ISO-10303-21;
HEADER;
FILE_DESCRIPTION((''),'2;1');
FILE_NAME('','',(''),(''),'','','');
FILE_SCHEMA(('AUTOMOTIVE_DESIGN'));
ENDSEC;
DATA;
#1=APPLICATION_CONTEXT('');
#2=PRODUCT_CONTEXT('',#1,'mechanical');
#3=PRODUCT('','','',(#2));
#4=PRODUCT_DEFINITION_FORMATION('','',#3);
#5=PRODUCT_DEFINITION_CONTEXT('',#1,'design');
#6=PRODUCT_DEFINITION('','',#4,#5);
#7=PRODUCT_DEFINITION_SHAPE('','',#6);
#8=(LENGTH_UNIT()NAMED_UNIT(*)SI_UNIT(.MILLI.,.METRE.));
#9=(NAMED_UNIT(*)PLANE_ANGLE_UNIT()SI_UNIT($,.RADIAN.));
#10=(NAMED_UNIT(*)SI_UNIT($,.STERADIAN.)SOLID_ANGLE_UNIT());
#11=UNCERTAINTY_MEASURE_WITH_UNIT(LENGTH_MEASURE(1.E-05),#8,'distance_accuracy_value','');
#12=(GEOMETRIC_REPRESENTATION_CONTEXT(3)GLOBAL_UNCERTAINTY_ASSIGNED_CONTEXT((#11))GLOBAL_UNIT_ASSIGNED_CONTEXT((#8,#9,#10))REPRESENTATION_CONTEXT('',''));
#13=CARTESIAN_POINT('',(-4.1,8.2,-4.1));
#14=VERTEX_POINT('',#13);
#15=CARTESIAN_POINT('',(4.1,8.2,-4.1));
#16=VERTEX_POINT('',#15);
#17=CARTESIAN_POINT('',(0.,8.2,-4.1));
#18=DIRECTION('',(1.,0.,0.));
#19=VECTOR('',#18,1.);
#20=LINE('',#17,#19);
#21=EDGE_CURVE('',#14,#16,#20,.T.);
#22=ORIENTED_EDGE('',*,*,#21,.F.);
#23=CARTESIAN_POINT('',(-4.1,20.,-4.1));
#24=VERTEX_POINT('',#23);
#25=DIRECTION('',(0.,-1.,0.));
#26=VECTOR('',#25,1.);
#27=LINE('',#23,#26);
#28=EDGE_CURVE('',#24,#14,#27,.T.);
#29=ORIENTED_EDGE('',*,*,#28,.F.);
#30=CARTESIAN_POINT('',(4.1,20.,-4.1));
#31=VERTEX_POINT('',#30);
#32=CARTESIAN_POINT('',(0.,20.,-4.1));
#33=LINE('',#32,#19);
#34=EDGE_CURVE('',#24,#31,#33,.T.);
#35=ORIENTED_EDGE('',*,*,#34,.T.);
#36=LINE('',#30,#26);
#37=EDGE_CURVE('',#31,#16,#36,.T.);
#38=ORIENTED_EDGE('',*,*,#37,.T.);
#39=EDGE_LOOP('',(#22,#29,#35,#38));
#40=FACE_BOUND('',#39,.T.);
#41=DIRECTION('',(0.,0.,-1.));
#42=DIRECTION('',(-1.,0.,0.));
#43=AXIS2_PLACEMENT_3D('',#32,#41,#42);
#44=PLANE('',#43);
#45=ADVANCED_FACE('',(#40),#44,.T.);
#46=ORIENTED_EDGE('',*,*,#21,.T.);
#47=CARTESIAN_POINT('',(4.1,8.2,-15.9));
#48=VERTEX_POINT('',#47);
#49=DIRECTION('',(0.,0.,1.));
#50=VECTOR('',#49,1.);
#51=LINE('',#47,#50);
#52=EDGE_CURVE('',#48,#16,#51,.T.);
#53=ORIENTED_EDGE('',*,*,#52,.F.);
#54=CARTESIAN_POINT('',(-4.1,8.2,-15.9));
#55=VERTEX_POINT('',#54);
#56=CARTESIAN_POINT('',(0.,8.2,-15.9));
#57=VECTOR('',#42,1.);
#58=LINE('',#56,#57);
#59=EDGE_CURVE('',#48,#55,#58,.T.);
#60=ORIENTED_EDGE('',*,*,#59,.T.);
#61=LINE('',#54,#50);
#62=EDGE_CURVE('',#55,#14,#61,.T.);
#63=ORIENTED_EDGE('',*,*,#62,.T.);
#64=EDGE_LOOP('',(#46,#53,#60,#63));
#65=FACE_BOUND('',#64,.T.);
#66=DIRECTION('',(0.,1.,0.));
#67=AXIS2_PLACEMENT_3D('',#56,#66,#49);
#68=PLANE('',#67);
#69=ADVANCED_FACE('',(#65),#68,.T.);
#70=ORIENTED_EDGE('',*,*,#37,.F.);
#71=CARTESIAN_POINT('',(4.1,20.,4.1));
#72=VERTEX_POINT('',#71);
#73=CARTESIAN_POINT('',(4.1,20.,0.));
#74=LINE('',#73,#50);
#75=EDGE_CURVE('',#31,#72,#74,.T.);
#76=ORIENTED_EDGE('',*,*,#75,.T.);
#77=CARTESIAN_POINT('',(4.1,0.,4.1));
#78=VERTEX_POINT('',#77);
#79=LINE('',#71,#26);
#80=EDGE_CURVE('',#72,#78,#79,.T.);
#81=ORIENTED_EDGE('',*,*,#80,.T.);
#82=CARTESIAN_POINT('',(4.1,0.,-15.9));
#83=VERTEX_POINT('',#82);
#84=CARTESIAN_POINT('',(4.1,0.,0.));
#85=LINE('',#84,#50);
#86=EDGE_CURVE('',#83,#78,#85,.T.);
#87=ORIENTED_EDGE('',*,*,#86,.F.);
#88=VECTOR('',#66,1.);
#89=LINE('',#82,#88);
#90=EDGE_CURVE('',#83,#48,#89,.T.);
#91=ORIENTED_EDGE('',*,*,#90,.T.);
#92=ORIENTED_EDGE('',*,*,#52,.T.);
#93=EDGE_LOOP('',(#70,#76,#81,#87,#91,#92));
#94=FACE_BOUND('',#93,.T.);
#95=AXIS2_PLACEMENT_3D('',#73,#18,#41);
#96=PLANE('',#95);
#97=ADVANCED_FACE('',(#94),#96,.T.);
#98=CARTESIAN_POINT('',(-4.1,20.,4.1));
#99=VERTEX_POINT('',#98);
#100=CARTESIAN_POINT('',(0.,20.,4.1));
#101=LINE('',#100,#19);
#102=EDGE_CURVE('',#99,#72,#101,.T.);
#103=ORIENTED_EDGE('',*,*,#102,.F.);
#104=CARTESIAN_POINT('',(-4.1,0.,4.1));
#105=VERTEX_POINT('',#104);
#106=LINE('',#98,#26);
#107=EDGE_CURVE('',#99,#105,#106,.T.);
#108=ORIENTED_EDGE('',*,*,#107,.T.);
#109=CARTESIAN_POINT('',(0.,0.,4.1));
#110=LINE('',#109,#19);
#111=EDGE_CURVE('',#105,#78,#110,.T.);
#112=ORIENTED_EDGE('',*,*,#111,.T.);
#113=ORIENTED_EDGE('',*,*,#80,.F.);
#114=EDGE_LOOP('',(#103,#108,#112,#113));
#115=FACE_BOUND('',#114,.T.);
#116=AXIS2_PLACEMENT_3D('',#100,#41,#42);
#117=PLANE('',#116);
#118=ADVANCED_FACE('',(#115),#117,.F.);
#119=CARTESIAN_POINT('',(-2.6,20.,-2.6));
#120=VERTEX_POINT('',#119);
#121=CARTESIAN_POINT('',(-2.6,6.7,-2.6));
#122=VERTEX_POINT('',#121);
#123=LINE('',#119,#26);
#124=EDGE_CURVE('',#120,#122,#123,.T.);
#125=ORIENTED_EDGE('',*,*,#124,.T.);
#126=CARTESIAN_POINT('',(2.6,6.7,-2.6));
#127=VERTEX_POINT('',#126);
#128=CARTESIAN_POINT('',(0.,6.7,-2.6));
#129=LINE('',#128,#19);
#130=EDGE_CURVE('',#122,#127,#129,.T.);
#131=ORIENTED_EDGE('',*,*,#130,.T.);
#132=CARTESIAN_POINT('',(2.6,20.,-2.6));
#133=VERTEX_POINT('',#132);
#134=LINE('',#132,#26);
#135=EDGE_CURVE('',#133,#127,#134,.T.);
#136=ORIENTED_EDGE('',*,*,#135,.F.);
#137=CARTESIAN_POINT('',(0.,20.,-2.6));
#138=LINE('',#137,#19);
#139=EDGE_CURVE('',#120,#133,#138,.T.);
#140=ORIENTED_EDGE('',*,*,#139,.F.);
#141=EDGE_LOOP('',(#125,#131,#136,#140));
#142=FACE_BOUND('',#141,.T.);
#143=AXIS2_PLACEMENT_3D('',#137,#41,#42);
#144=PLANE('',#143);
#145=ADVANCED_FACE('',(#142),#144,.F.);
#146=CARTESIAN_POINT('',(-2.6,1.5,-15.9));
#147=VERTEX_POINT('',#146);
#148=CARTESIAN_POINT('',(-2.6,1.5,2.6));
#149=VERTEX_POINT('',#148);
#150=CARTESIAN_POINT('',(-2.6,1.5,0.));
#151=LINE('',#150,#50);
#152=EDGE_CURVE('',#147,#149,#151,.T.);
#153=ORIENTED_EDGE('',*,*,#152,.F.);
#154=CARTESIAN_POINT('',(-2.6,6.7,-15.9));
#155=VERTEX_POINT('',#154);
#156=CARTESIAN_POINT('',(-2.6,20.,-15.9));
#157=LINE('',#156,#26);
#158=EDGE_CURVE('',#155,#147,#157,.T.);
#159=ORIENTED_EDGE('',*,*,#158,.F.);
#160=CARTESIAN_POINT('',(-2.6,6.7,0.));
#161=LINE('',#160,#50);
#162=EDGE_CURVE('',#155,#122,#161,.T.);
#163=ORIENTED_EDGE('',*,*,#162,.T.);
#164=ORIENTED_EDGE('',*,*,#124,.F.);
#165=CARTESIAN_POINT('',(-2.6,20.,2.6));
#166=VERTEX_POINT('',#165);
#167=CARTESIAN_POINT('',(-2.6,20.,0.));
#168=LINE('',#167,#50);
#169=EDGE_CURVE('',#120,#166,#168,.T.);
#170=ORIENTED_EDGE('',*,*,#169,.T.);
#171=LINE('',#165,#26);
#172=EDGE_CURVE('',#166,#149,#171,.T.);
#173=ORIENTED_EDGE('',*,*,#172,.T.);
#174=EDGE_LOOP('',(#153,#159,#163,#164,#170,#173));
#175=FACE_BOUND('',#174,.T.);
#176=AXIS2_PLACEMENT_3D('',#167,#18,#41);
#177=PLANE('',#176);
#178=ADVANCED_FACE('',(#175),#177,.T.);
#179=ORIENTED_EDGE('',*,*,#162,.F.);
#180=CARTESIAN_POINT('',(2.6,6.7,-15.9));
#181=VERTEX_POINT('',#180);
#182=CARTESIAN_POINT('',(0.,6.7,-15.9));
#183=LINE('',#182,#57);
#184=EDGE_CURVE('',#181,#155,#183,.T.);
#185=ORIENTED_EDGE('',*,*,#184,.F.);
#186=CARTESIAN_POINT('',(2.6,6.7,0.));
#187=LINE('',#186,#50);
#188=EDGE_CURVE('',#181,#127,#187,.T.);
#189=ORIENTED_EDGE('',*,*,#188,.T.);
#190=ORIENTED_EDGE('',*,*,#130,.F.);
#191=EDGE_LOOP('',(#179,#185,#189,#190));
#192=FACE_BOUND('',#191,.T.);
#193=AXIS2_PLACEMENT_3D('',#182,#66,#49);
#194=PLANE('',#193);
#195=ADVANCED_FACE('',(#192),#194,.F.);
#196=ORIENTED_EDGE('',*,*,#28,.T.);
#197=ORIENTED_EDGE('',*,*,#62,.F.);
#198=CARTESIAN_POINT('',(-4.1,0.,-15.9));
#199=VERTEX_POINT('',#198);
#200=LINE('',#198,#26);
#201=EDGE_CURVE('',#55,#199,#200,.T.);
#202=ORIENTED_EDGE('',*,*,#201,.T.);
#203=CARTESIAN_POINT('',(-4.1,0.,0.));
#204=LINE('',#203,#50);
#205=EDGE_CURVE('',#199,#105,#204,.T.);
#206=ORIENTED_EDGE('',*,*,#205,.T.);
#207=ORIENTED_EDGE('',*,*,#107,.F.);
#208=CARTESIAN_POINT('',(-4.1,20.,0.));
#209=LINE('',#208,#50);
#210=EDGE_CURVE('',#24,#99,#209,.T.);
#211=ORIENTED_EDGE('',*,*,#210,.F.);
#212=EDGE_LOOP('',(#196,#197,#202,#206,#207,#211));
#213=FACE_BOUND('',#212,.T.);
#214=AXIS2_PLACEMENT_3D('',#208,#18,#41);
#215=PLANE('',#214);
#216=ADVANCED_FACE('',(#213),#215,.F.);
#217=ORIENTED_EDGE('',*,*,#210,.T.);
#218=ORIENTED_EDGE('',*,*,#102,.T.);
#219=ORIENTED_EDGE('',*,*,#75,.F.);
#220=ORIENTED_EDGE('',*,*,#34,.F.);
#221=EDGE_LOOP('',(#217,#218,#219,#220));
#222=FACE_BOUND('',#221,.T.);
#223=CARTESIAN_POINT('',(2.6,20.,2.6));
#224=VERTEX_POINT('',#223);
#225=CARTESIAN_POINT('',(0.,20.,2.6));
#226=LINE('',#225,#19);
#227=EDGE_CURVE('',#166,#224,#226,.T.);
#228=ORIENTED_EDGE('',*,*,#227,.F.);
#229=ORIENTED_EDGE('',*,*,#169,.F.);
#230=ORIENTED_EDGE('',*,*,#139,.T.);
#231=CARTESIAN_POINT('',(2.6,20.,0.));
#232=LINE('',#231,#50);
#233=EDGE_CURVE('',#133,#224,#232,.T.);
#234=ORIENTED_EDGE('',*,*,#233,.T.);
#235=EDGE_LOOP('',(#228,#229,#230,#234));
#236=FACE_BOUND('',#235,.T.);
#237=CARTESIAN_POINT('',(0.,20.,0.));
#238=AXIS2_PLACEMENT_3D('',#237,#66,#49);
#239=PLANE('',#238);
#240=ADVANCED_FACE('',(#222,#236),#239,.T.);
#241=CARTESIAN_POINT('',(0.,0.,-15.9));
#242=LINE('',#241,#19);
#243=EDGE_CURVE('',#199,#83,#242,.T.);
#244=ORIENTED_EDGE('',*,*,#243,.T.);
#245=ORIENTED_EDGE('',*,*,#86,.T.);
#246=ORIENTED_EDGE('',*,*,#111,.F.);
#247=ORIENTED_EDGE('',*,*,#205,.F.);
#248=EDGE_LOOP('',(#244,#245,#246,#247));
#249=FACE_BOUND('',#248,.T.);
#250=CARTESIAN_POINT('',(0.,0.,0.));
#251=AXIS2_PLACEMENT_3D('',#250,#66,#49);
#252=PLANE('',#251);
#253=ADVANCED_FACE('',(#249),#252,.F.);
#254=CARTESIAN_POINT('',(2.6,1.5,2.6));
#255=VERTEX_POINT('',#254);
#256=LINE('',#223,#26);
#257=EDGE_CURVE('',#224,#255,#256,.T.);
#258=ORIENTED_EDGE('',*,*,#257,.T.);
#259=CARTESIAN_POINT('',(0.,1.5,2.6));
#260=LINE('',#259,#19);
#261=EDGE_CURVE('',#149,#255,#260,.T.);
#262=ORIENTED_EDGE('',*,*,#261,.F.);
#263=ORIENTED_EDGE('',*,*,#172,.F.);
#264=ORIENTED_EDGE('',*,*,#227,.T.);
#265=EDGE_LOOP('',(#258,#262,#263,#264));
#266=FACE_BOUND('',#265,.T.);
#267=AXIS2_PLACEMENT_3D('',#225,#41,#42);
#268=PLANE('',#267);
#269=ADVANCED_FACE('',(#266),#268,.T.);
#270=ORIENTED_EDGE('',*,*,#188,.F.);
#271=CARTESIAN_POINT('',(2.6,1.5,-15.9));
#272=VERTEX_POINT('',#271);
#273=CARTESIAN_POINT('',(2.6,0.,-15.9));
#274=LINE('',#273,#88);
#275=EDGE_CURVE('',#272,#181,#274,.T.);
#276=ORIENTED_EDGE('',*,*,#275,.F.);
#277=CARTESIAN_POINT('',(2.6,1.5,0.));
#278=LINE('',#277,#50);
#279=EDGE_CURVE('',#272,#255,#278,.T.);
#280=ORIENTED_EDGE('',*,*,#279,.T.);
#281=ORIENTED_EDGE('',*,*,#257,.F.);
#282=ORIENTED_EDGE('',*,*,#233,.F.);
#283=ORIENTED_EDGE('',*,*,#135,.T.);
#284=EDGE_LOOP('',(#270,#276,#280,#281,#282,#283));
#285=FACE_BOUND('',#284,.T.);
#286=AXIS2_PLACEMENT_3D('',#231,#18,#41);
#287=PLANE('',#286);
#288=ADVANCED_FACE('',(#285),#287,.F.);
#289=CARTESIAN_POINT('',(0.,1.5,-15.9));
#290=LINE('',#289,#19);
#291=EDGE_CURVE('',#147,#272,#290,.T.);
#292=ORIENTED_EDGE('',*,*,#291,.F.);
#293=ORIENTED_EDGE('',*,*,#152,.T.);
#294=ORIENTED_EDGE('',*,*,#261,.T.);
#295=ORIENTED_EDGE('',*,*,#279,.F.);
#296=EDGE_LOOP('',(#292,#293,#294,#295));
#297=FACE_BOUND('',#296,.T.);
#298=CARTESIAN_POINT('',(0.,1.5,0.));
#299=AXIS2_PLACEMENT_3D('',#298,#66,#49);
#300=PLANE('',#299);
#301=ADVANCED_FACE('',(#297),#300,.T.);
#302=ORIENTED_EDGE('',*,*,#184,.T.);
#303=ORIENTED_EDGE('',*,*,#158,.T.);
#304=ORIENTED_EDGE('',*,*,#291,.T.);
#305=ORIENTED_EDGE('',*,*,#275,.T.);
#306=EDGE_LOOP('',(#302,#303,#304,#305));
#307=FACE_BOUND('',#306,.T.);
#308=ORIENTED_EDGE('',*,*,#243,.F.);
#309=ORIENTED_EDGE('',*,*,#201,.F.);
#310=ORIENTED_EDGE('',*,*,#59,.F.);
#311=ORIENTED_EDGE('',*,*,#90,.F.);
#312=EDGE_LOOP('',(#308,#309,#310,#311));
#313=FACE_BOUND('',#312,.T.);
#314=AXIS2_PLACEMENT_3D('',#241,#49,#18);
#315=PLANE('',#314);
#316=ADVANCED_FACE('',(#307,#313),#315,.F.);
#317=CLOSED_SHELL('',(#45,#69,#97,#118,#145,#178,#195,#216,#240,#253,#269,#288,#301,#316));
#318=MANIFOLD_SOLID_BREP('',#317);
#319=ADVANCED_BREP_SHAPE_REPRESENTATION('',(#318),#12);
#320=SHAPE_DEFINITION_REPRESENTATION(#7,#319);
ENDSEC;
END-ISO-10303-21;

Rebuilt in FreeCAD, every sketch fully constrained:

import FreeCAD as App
import Part
import Sketcher

V = App.Vector


def faces_at(feature, points):
    """Names of the faces that lie closest to the given points."""
    faces = feature.Shape.Faces
    near = lambda p: min(range(len(faces)), key=lambda i: faces[i].distToShape(Part.Vertex(*p))[0])
    return sorted({f"Face{near(p) + 1}" for p in points})

doc = App.newDocument("Part")
body = doc.addObject("PartDesign::Body", "Body")

sketch1 = body.newObject("Sketcher::SketchObject", "Sketch")
sketch1.AttachmentSupport = (doc.getObject("XZ_Plane"), [""])
sketch1.MapMode = "FlatFace"
sketch1.addGeometry(Part.LineSegment(V(-4, -4, 0), V(-4, 4, 0)), False)
sketch1.addGeometry(Part.LineSegment(V(-4, 4, 0), V(4, 4, 0)), False)
sketch1.addGeometry(Part.LineSegment(V(4, 4, 0), V(4, -4, 0)), False)
sketch1.addGeometry(Part.LineSegment(V(4, -4, 0), V(-4, -4, 0)), False)
sketch1.addConstraint(Sketcher.Constraint("Coincident", 0, 2, 1, 1))
sketch1.addConstraint(Sketcher.Constraint("Coincident", 1, 2, 2, 1))
sketch1.addConstraint(Sketcher.Constraint("Coincident", 2, 2, 3, 1))
sketch1.addConstraint(Sketcher.Constraint("Coincident", 3, 2, 0, 1))
sketch1.addConstraint(Sketcher.Constraint("Vertical", 0))
sketch1.addConstraint(Sketcher.Constraint("Horizontal", 1))
sketch1.addConstraint(Sketcher.Constraint("Vertical", 2))
sketch1.addConstraint(Sketcher.Constraint("Horizontal", 3))
sketch1.addConstraint(Sketcher.Constraint("Symmetric", 0, 2, 2, 2, -1, 1))
sketch1.addConstraint(Sketcher.Constraint("Equal", 3, 0))
sketch1.addConstraint(Sketcher.Constraint("DistanceX", 1, 1, 1, 2, 8.2))
pad1 = body.newObject("PartDesign::Pad", "Pad")
pad1.Profile = sketch1
pad1.Length = 20
pad1.Reversed = True

sketch2 = body.newObject("Sketcher::SketchObject", "Sketch001")
sketch2.AttachmentSupport = (doc.getObject("XY_Plane"), [""])
sketch2.MapMode = "FlatFace"
sketch2.AttachmentOffset = App.Placement(V(0, 0, 4.1), App.Rotation())
sketch2.addGeometry(Part.LineSegment(V(4, 8, 0), V(4, 0, 0)), False)
sketch2.addGeometry(Part.LineSegment(V(4, 0, 0), V(-4, 0, 0)), False)
sketch2.addGeometry(Part.LineSegment(V(-4, 0, 0), V(-4, 8, 0)), False)
sketch2.addGeometry(Part.LineSegment(V(-4, 8, 0), V(4, 8, 0)), False)
sketch2.addConstraint(Sketcher.Constraint("Coincident", 0, 2, 1, 1))
sketch2.addConstraint(Sketcher.Constraint("Coincident", 1, 2, 2, 1))
sketch2.addConstraint(Sketcher.Constraint("Coincident", 2, 2, 3, 1))
sketch2.addConstraint(Sketcher.Constraint("Coincident", 3, 2, 0, 1))
sketch2.addConstraint(Sketcher.Constraint("Vertical", 0))
sketch2.addConstraint(Sketcher.Constraint("Horizontal", 1))
sketch2.addConstraint(Sketcher.Constraint("Vertical", 2))
sketch2.addConstraint(Sketcher.Constraint("Horizontal", 3))
sketch2.addConstraint(Sketcher.Constraint("Symmetric", 0, 2, 1, 2, -1, 1))
sketch2.addConstraint(Sketcher.Constraint("Equal", 3, 0))
sketch2.addConstraint(Sketcher.Constraint("DistanceX", 1, 2, 1, 1, 8.2))
pad2 = body.newObject("PartDesign::Pad", "Pad001")
pad2.Profile = sketch2
pad2.Length = 20
pad2.Reversed = True
doc.recompute()

thickness = body.newObject("PartDesign::Thickness", "Thickness")
thickness.Base = (pad2, faces_at(pad2, [(0, 20, 0), (0, 4.1, -15.9)]))
thickness.Value = 1.5
thickness.Reversed = True
thickness.Join = "Intersection"

doc.recompute()
